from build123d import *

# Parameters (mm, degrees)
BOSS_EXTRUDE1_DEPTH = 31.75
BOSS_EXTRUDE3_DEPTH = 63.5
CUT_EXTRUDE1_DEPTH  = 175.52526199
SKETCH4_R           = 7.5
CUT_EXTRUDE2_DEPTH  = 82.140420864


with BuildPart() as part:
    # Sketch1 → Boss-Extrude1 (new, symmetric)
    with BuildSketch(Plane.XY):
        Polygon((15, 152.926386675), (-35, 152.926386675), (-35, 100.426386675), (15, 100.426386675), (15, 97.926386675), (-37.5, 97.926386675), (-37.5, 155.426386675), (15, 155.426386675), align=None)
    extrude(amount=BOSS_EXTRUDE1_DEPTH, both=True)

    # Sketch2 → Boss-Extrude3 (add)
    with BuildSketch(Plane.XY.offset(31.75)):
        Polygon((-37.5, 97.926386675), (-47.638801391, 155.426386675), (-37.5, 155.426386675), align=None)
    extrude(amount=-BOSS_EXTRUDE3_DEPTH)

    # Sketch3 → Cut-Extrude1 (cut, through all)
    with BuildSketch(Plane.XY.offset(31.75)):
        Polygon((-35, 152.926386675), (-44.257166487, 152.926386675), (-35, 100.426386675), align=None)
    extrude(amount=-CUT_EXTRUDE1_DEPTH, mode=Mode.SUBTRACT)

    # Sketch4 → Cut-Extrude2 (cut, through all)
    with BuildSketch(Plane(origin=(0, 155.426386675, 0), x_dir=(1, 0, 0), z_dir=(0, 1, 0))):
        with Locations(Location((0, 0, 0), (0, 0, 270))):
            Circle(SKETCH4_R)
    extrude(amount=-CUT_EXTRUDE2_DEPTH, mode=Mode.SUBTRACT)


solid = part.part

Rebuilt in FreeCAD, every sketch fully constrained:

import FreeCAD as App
import Part
import Sketcher
Q = App.Units.Quantity


def add_polygon(sketch, points):
    """Adds a closed chain of lines whose ends are joined by coincident constraints."""
    first, n = sketch.GeometryCount, len(points)
    for a, b in zip(points, points[1:] + points[:1]):
        sketch.addGeometry(Part.LineSegment(App.Vector(*a, 0), App.Vector(*b, 0)), False)
    for i in range(n):
        sketch.addConstraint(Sketcher.Constraint("Coincident", first + i, 2, first + (i + 1) % n, 1))

doc = App.newDocument("Part")
body = doc.addObject("PartDesign::Body", "Body")

# Sketch on XY plane
sketch1 = body.newObject("Sketcher::SketchObject", "Sketch")
sketch1.AttachmentSupport = (doc.getObject("XY_Plane"), [""])
sketch1.MapMode = "FlatFace"
add_polygon(sketch1, [(-35, 152.9), (15, 152.9), (15, 155.4), (-37.5, 155.4), (-37.5, 97.9), (15, 97.9), (15, 100.4), (-35, 100.4)])  # lines 0-7
sketch1.addConstraint(Sketcher.Constraint("Horizontal", 0))
sketch1.addConstraint(Sketcher.Constraint("Vertical", 1))
sketch1.addConstraint(Sketcher.Constraint("Horizontal", 2))
sketch1.addConstraint(Sketcher.Constraint("Vertical", 3))
sketch1.addConstraint(Sketcher.Constraint("Horizontal", 4))
sketch1.addConstraint(Sketcher.Constraint("Vertical", 5))
sketch1.addConstraint(Sketcher.Constraint("Horizontal", 6))
sketch1.addConstraint(Sketcher.Constraint("Vertical", 7))
sketch1.addConstraint(Sketcher.Constraint("Vertical", 1, 2, 4, 2))
sketch1.addConstraint(Sketcher.Constraint("Equal", 1, 5))
sketch1.addConstraint(Sketcher.Constraint("Equal", 4, 7))
sketch1.addConstraint(Sketcher.Constraint("DistanceX", 0, 1, 0, 2, Q("50 mm")))
sketch1.addConstraint(Sketcher.Constraint("DistanceX", 2, 2, 2, 1, Q("52.5 mm")))
sketch1.addConstraint(Sketcher.Constraint("DistanceY", 1, 1, 1, 2, Q("2.5 mm")))
sketch1.addConstraint(Sketcher.Constraint("DistanceX", -1, 1, 0, 2, Q("15 mm")))
sketch1.addConstraint(Sketcher.Constraint("DistanceY", -1, 1, 0, 2, Q("152.926387 mm")))
pad1 = body.newObject("PartDesign::Pad", "Pad")
pad1.Profile = sketch1
pad1.Length = 63.5
pad1.Midplane = True

# Sketch on XY plane
sketch2 = body.newObject("Sketcher::SketchObject", "Sketch001")
sketch2.AttachmentSupport = (doc.getObject("XY_Plane"), [""])
sketch2.MapMode = "FlatFace"
sketch2.AttachmentOffset = App.Placement(App.Vector(0, 0, 31.75), App.Rotation())
add_polygon(sketch2, [(-48, 155), (-38, 98), (-38, 155)])  # lines 0-2
sketch2.addConstraint(Sketcher.Constraint("Vertical", 1))
sketch2.addConstraint(Sketcher.Constraint("Horizontal", 2))
sketch2.addConstraint(Sketcher.Constraint("Angle", 0, Q("-80 deg")))
sketch2.addConstraint(Sketcher.Constraint("DistanceY", 1, 1, 1, 2, Q("57.5 mm")))
sketch2.addConstraint(Sketcher.Constraint("DistanceX", 0, 2, -1, 1, Q("37.5 mm")))
sketch2.addConstraint(Sketcher.Constraint("DistanceY", -1, 1, 0, 2, Q("97.926387 mm")))
pad2 = body.newObject("PartDesign::Pad", "Pad001")
pad2.Profile = sketch2
pad2.Length = 63.5
pad2.Reversed = True

# Sketch on XY plane
sketch3 = body.newObject("Sketcher::SketchObject", "Sketch002")
sketch3.AttachmentSupport = (doc.getObject("XY_Plane"), [""])
sketch3.MapMode = "FlatFace"
sketch3.AttachmentOffset = App.Placement(App.Vector(0, 0, 31.75), App.Rotation())
add_polygon(sketch3, [(-35, 153), (-44, 153), (-35, 100)])  # lines 0-2
sketch3.addConstraint(Sketcher.Constraint("Horizontal", 0))
sketch3.addConstraint(Sketcher.Constraint("Vertical", 2))
sketch3.addConstraint(Sketcher.Constraint("Angle", 1, Q("-80 deg")))
sketch3.addConstraint(Sketcher.Constraint("DistanceY", 2, 1, 2, 2, Q("52.5 mm")))
sketch3.addConstraint(Sketcher.Constraint("DistanceX", 1, 2, -1, 1, Q("35 mm")))
sketch3.addConstraint(Sketcher.Constraint("DistanceY", -1, 1, 0, 2, Q("152.926387 mm")))
pocket1 = body.newObject("PartDesign::Pocket", "Pocket")
pocket1.Profile = sketch3
pocket1.Type = "ThroughAll"

# Sketch on XZ plane
sketch4 = body.newObject("Sketcher::SketchObject", "Sketch003")
sketch4.AttachmentSupport = (doc.getObject("XZ_Plane"), [""])
sketch4.MapMode = "FlatFace"
sketch4.AttachmentOffset = App.Placement(App.Vector(0, 0, -155.426387), App.Rotation())
sketch4.addGeometry(Part.Circle(App.Vector(0, 0, 0), App.Vector(0, 0, 1), 8), False)
sketch4.addConstraint(Sketcher.Constraint("Coincident", 0, 3, -1, 1))
sketch4.addConstraint(Sketcher.Constraint("Diameter", 0, Q("15 mm")))
pocket2 = body.newObject("PartDesign::Pocket", "Pocket001")
pocket2.Profile = sketch4
pocket2.Type = "ThroughAll"
pocket2.Reversed = True

doc.recompute()
